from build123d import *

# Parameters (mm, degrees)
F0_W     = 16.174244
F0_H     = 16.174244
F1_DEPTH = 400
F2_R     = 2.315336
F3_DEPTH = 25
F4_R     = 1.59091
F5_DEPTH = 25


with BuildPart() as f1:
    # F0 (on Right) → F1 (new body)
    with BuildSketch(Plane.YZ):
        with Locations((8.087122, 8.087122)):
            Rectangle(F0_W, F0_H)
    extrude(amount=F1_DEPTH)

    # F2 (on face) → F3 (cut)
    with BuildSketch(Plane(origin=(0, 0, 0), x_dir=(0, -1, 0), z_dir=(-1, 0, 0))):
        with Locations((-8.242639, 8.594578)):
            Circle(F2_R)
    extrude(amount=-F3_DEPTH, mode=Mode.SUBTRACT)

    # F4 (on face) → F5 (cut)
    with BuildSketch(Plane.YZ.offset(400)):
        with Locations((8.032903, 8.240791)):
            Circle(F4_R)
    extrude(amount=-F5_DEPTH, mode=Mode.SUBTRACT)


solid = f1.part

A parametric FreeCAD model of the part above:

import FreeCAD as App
import Part
import Sketcher
Q = App.Units.Quantity


def add_polygon(sketch, points):
    """Adds a closed chain of lines whose ends are joined by coincident constraints."""
    first, n = sketch.GeometryCount, len(points)
    for a, b in zip(points, points[1:] + points[:1]):
        sketch.addGeometry(Part.LineSegment(App.Vector(*a, 0), App.Vector(*b, 0)), False)
    for i in range(n):
        sketch.addConstraint(Sketcher.Constraint("Coincident", first + i, 2, first + (i + 1) % n, 1))

doc = App.newDocument("Part")
body = doc.addObject("PartDesign::Body", "Body")

# Sketch on YZ plane
sketch1 = body.newObject("Sketcher::SketchObject", "Sketch")
sketch1.AttachmentSupport = (doc.getObject("YZ_Plane"), [""])
sketch1.MapMode = "FlatFace"
add_polygon(sketch1, [(0, 16.174244), (0, 0), (16.174244, 0), (16.174244, 16.174244)])  # lines 0-3
sketch1.addConstraint([
    Sketcher.Constraint("Vertical", 0),
    Sketcher.Constraint("Horizontal", 1),
    Sketcher.Constraint("Vertical", 2),
    Sketcher.Constraint("Horizontal", 3),
    Sketcher.Constraint("Coincident", 0, 2, -1, 1),
    Sketcher.Constraint("Equal", 3, 0),
    Sketcher.Constraint("DistanceX", 1, 1, 1, 2, Q("16.174244 mm")),
])
pad1 = body.newObject("PartDesign::Pad", "Pad")
pad1.Profile = sketch1
pad1.Length = 400

# Sketch on YZ plane
sketch2 = body.newObject("Sketcher::SketchObject", "Sketch001")
sketch2.AttachmentSupport = (doc.getObject("YZ_Plane"), [""])
sketch2.MapMode = "FlatFace"
sketch2.addGeometry(Part.Circle(App.Vector(8.242639, 8.594578, 0), App.Vector(0, 0, 1), 2.315336), False)
sketch2.addConstraint([
    Sketcher.Constraint("Diameter", 0, Q("4.630672 mm")),
    Sketcher.Constraint("DistanceX", -1, 1, 0, 3, Q("8.242639 mm")),
    Sketcher.Constraint("DistanceY", -1, 1, 0, 3, Q("8.594578 mm")),
])
pocket1 = body.newObject("PartDesign::Pocket", "Pocket")
pocket1.Profile = sketch2
pocket1.Length = 25
pocket1.Reversed = True

# Sketch on YZ plane
sketch3 = body.newObject("Sketcher::SketchObject", "Sketch002")
sketch3.AttachmentSupport = (doc.getObject("YZ_Plane"), [""])
sketch3.MapMode = "FlatFace"
sketch3.AttachmentOffset = App.Placement(App.Vector(0, 0, 400), App.Rotation())
sketch3.addGeometry(Part.Circle(App.Vector(8.032903, 8.240791, 0), App.Vector(0, 0, 1), 1.59091), False)
sketch3.addConstraint([
    Sketcher.Constraint("Diameter", 0, Q("3.18182 mm")),
    Sketcher.Constraint("DistanceY", -1, 1, 0, 3, Q("8.240791 mm")),
    Sketcher.Constraint("DistanceX", -1, 1, 0, 3, Q("8.032903 mm")),
])
pocket2 = body.newObject("PartDesign::Pocket", "Pocket001")
pocket2.Profile = sketch3
pocket2.Length = 25

doc.recompute()
